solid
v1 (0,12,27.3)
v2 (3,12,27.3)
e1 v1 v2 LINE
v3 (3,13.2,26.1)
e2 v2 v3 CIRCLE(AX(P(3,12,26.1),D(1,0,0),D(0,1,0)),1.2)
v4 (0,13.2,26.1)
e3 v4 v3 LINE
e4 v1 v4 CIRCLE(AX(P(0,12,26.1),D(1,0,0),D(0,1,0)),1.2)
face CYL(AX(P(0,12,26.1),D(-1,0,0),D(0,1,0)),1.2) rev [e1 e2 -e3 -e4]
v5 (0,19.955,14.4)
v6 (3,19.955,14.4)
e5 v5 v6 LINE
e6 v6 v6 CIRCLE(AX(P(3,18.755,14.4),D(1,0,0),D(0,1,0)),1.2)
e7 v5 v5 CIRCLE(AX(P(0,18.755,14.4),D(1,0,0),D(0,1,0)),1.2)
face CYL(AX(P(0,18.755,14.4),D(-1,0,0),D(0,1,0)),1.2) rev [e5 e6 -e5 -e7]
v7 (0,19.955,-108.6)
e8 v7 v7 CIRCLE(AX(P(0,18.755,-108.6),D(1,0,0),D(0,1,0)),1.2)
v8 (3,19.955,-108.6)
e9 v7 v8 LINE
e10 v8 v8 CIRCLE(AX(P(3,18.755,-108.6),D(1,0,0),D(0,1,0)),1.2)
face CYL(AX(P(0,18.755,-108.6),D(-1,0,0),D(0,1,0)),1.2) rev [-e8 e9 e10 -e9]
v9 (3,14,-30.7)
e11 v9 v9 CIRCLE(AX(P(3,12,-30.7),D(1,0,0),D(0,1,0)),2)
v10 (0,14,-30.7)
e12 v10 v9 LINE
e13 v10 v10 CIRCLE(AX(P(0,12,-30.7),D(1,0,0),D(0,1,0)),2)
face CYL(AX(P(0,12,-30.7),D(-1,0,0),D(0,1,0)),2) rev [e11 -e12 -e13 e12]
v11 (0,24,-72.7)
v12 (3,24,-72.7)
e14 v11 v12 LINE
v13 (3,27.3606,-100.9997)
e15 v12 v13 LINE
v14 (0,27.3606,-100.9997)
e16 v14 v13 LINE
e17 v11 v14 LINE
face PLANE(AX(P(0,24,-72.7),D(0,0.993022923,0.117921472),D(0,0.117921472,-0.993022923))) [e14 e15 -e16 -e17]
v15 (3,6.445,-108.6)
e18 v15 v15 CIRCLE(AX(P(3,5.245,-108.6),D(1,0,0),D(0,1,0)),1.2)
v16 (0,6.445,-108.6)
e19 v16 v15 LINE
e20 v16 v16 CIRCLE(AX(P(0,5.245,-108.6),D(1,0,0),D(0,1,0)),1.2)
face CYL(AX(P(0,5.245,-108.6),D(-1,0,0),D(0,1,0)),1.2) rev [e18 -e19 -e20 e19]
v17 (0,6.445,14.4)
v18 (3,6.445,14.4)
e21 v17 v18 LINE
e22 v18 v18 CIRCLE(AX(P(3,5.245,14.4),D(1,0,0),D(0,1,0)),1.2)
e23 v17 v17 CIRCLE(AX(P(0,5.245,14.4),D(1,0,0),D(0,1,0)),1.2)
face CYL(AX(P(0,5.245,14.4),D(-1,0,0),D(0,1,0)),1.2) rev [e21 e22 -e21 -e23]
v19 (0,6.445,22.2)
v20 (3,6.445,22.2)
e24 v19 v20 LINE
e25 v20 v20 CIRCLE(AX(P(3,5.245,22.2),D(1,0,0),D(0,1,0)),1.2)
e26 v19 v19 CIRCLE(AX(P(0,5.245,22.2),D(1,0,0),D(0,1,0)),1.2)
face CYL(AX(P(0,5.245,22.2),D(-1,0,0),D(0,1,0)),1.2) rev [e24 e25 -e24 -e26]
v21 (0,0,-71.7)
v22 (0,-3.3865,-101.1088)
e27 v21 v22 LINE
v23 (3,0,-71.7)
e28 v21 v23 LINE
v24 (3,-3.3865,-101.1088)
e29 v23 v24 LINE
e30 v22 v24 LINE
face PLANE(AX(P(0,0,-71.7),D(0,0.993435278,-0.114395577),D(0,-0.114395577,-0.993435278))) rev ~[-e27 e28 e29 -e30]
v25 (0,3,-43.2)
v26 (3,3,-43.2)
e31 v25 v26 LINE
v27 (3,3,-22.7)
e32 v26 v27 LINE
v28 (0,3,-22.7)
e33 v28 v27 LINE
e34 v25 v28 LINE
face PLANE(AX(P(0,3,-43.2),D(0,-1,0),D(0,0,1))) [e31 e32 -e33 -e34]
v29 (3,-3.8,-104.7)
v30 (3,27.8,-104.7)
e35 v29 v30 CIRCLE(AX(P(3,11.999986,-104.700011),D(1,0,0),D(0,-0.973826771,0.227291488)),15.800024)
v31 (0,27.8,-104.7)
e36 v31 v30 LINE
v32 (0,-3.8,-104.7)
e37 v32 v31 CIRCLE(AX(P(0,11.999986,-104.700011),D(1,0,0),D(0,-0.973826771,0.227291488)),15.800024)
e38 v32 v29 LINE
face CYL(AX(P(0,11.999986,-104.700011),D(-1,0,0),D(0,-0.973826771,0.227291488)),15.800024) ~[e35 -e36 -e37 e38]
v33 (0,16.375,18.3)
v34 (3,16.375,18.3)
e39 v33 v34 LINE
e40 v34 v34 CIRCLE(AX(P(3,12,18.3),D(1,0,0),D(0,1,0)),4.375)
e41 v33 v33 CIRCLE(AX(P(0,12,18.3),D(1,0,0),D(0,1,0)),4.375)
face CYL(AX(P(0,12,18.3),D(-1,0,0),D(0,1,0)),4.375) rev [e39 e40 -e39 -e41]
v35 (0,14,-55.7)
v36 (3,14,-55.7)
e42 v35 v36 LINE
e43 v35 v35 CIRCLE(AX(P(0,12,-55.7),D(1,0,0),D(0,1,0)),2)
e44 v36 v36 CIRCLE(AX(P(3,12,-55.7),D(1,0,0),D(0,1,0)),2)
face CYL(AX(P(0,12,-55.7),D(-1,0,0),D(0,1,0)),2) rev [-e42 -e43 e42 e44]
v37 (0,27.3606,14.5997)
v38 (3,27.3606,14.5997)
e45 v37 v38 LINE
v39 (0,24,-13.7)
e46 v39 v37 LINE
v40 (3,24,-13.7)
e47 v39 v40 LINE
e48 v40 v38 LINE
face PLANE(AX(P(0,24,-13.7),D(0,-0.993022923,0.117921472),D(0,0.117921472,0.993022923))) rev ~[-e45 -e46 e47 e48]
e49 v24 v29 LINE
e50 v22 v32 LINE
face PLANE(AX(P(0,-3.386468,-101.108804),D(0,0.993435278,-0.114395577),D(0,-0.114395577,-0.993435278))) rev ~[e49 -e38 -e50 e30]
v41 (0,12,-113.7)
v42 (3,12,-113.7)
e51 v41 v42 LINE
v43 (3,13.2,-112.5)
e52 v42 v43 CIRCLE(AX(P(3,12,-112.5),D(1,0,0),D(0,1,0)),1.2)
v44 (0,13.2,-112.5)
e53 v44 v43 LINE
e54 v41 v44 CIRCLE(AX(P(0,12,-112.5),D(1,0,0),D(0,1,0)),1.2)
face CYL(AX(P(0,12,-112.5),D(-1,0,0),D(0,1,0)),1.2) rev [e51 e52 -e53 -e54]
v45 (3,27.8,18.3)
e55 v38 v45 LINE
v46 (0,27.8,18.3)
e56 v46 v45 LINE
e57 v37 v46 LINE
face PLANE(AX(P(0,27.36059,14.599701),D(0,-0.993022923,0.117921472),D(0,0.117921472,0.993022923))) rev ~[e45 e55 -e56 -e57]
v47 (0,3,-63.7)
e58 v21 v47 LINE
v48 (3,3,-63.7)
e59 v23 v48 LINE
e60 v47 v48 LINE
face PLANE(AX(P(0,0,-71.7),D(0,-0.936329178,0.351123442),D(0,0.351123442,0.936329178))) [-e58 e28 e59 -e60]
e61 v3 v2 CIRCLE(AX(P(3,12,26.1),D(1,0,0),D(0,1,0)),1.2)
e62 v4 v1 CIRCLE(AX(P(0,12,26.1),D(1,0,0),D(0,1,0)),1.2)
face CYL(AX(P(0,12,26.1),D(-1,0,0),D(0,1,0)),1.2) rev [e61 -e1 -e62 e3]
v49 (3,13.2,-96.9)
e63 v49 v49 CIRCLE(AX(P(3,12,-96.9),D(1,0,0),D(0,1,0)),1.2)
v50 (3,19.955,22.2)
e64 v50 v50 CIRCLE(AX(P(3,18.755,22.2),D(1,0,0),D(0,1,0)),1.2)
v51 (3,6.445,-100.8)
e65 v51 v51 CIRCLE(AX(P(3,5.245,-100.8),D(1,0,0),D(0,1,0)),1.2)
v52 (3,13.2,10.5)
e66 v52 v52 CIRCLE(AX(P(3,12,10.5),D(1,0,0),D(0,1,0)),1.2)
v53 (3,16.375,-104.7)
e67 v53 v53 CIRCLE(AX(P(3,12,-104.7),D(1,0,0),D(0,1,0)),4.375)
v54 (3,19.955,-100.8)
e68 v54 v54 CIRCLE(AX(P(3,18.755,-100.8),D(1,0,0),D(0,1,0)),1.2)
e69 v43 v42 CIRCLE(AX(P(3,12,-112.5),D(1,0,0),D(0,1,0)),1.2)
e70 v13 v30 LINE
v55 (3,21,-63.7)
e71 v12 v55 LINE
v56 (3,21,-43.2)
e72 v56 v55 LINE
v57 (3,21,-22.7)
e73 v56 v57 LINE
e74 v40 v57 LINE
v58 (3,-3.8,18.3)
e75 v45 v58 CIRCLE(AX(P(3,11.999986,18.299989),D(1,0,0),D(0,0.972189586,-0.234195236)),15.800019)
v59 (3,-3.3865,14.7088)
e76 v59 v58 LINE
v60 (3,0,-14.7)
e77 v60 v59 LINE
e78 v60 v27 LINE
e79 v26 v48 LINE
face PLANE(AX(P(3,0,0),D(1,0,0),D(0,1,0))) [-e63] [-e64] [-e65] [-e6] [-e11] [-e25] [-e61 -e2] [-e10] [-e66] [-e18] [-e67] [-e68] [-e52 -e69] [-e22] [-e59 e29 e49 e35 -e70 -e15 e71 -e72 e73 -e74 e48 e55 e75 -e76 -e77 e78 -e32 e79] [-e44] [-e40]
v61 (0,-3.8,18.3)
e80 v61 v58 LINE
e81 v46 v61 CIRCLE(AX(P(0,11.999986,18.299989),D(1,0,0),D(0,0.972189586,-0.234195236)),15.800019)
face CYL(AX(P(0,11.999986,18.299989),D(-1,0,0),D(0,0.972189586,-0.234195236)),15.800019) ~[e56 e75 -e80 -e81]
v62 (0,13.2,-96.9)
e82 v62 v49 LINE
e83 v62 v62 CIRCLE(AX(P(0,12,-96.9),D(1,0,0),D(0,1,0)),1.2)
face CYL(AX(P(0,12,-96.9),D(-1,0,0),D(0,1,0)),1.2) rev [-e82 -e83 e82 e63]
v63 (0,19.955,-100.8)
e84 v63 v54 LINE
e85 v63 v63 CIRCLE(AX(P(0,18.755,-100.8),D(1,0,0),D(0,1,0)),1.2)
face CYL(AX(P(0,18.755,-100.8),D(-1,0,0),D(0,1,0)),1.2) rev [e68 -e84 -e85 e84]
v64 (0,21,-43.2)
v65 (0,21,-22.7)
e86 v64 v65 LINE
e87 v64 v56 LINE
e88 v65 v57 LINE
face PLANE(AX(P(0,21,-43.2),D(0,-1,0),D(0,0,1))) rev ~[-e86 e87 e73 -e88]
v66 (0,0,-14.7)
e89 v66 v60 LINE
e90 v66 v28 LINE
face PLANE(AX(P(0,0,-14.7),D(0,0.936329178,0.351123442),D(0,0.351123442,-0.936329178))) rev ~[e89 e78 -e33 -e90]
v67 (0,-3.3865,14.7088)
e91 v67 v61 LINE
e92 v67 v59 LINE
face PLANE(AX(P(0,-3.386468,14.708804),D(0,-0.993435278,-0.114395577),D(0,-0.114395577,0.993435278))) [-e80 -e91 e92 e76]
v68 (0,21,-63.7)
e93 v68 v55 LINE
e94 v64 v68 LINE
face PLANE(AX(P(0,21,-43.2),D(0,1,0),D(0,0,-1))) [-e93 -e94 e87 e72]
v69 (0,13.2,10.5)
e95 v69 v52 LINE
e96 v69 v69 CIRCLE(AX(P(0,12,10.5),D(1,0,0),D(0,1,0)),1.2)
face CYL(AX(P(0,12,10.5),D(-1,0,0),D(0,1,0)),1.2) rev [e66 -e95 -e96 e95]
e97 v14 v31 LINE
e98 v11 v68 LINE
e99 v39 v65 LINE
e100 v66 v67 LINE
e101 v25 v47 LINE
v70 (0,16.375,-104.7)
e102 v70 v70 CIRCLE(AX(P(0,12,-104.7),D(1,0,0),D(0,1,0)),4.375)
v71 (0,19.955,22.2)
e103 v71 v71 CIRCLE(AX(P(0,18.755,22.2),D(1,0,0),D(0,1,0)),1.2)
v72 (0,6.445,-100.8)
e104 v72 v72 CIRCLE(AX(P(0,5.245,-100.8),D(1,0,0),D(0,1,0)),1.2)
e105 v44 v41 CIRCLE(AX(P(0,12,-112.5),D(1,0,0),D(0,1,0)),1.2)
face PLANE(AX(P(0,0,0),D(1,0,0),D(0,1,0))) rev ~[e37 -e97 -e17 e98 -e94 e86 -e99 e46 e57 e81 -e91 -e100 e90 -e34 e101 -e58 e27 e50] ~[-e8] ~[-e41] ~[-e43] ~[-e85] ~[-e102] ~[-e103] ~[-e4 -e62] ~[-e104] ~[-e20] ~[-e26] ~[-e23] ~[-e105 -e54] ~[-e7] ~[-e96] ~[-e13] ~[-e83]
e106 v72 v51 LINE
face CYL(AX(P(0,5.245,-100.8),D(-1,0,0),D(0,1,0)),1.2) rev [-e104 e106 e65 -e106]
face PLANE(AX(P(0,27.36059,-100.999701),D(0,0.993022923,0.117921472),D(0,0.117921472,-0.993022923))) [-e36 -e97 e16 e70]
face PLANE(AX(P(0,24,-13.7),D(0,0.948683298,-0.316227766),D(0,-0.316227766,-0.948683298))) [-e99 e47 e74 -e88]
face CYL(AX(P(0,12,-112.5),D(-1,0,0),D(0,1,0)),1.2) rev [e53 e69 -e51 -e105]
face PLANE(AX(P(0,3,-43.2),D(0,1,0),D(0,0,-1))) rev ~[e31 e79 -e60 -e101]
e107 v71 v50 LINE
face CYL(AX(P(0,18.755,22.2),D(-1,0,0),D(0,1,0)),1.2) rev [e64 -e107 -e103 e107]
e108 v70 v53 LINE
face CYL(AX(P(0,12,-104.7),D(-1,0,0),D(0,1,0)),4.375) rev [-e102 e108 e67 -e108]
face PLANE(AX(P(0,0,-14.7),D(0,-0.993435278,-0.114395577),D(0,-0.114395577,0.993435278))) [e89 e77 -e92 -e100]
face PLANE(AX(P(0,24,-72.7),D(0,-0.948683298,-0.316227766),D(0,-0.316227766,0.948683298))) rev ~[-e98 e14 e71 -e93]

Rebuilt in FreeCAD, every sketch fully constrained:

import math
import FreeCAD as App
import Part
import Sketcher

V = App.Vector
Q = App.Units.Quantity

doc = App.newDocument("Part")
body = doc.addObject("PartDesign::Body", "Body")

# Sketch on YZ plane
sketch1 = body.newObject("Sketcher::SketchObject", "Sketch")
sketch1.AttachmentSupport = (doc.getObject("YZ_Plane"), [""])
sketch1.MapMode = "FlatFace"
sketch1.addGeometry(Part.LineSegment(V(27.8, -104.7, 0), V(24, -72.7, 0)), False)
sketch1.addGeometry(Part.LineSegment(V(24, -72.7, 0), V(21, -63.7, 0)), False)
sketch1.addGeometry(Part.LineSegment(V(21, -63.7, 0), V(21, -22.7, 0)), False)
sketch1.addGeometry(Part.LineSegment(V(21, -22.7, 0), V(24, -13.7, 0)), False)
sketch1.addGeometry(Part.LineSegment(V(24, -13.7, 0), V(27.8, 18.3, 0)), False)
sketch1.addGeometry(Part.ArcOfCircle(Part.Circle(V(12, 18.3, 0), V(0, 0, 1), 15.8), math.radians(0), math.radians(180)), False)
sketch1.addGeometry(Part.LineSegment(V(-3.8, 18.3, 0), V(0, -14.7, 0)), False)
sketch1.addGeometry(Part.LineSegment(V(0, -14.7, 0), V(3, -22.7, 0)), False)
sketch1.addGeometry(Part.LineSegment(V(3, -22.7, 0), V(3, -63.7, 0)), False)
sketch1.addGeometry(Part.LineSegment(V(3, -63.7, 0), V(0, -71.7, 0)), False)
sketch1.addGeometry(Part.LineSegment(V(0, -71.7, 0), V(-3.8, -104.7, 0)), False)
sketch1.addGeometry(Part.ArcOfCircle(Part.Circle(V(12, -104.7, 0), V(0, 0, 1), 15.8), math.radians(180), math.radians(360)), False)
sketch1.addGeometry(Part.Circle(V(5.2, -108.6, 0), V(0, 0, 1), 1.2), False)
sketch1.addGeometry(Part.Circle(V(5.2, -100.8, 0), V(0, 0, 1), 1.2), False)
sketch1.addGeometry(Part.Circle(V(12, -112.5, 0), V(0, 0, 1), 1.2), False)
sketch1.addGeometry(Part.Circle(V(12, -104.7, 0), V(0, 0, 1), 4.4), False)
sketch1.addGeometry(Part.Circle(V(18.8, -108.6, 0), V(0, 0, 1), 1.2), False)
sketch1.addGeometry(Part.Circle(V(12, -96.9, 0), V(0, 0, 1), 1.2), False)
sketch1.addGeometry(Part.Circle(V(18.8, -100.8, 0), V(0, 0, 1), 1.2), False)
sketch1.addGeometry(Part.Circle(V(12, -55.7, 0), V(0, 0, 1), 2), False)
sketch1.addGeometry(Part.Circle(V(5.2, 14.4, 0), V(0, 0, 1), 1.2), False)
sketch1.addGeometry(Part.Circle(V(5.2, 22.2, 0), V(0, 0, 1), 1.2), False)
sketch1.addGeometry(Part.Circle(V(12, -30.7, 0), V(0, 0, 1), 2), False)
sketch1.addGeometry(Part.Circle(V(12, 10.5, 0), V(0, 0, 1), 1.2), False)
sketch1.addGeometry(Part.Circle(V(18.8, 14.4, 0), V(0, 0, 1), 1.2), False)
sketch1.addGeometry(Part.Circle(V(12, 18.3, 0), V(0, 0, 1), 4.4), False)
sketch1.addGeometry(Part.Circle(V(12, 26.1, 0), V(0, 0, 1), 1.2), False)
sketch1.addGeometry(Part.Circle(V(18.8, 22.2, 0), V(0, 0, 1), 1.2), False)
sketch1.addConstraint(Sketcher.Constraint("Coincident", 0, 2, 1, 1))
sketch1.addConstraint(Sketcher.Constraint("Coincident", 1, 2, 2, 1))
sketch1.addConstraint(Sketcher.Constraint("Coincident", 2, 2, 3, 1))
sketch1.addConstraint(Sketcher.Constraint("Coincident", 3, 2, 4, 1))
sketch1.addConstraint(Sketcher.Constraint("Coincident", 4, 2, 5, 1))
sketch1.addConstraint(Sketcher.Constraint("Coincident", 5, 2, 6, 1))
sketch1.addConstraint(Sketcher.Constraint("Coincident", 6, 2, 7, 1))
sketch1.addConstraint(Sketcher.Constraint("Coincident", 7, 2, 8, 1))
sketch1.addConstraint(Sketcher.Constraint("Coincident", 8, 2, 9, 1))
sketch1.addConstraint(Sketcher.Constraint("Coincident", 9, 2, 10, 1))
sketch1.addConstraint(Sketcher.Constraint("Coincident", 10, 2, 11, 1))
sketch1.addConstraint(Sketcher.Constraint("Coincident", 11, 2, 0, 1))
sketch1.addConstraint(Sketcher.Constraint("Vertical", 2))
sketch1.addConstraint(Sketcher.Constraint("Vertical", 8))
sketch1.addConstraint(Sketcher.Constraint("Coincident", 15, 3, 11, 3))
sketch1.addConstraint(Sketcher.Constraint("Coincident", 25, 3, 5, 3))
sketch1.addConstraint(Sketcher.Constraint("Equal", 5, 11))
sketch1.addConstraint(Sketcher.Constraint("Equal", 12, 13))
sketch1.addConstraint(Sketcher.Constraint("Equal", 13, 14))
sketch1.addConstraint(Sketcher.Constraint("Equal", 14, 16))
sketch1.addConstraint(Sketcher.Constraint("Equal", 16, 17))
sketch1.addConstraint(Sketcher.Constraint("Equal", 17, 18))
sketch1.addConstraint(Sketcher.Constraint("Equal", 18, 20))
sketch1.addConstraint(Sketcher.Constraint("Equal", 20, 21))
sketch1.addConstraint(Sketcher.Constraint("Equal", 19, 22))
sketch1.addConstraint(Sketcher.Constraint("Equal", 21, 23))
sketch1.addConstraint(Sketcher.Constraint("Equal", 23, 24))
sketch1.addConstraint(Sketcher.Constraint("Equal", 15, 25))
sketch1.addConstraint(Sketcher.Constraint("Equal", 24, 26))
sketch1.addConstraint(Sketcher.Constraint("Equal", 26, 27))
sketch1.addConstraint(Sketcher.Constraint("PointOnObject", 6, 2, -2))
sketch1.addConstraint(Sketcher.Constraint("PointOnObject", 9, 2, -2))
sketch1.addConstraint(Sketcher.Constraint("Horizontal", 12, 3, 16, 3))
sketch1.addConstraint(Sketcher.Constraint("Horizontal", 13, 3, 18, 3))
sketch1.addConstraint(Sketcher.Constraint("Horizontal", 20, 3, 24, 3))
sketch1.addConstraint(Sketcher.Constraint("Horizontal", 21, 3, 27, 3))
sketch1.addConstraint(Sketcher.Constraint("Horizontal", 25, 3, 4, 2))
sketch1.addConstraint(Sketcher.Constraint("Horizontal", 4, 2, 5, 2))
sketch1.addConstraint(Sketcher.Constraint("Horizontal", 2, 2, 7, 2))
sketch1.addConstraint(Sketcher.Constraint("Horizontal", 1, 2, 8, 2))
sketch1.addConstraint(Sketcher.Constraint("Horizontal", 15, 3, 10, 2))
sketch1.addConstraint(Sketcher.Constraint("Horizontal", 10, 2, 11, 2))
sketch1.addConstraint(Sketcher.Constraint("Vertical", 5, 3, 11, 3))
sketch1.addConstraint(Sketcher.Constraint("Vertical", 12, 3, 13, 3))
sketch1.addConstraint(Sketcher.Constraint("Vertical", 11, 3, 14, 3))
sketch1.addConstraint(Sketcher.Constraint("Vertical", 15, 3, 17, 3))
sketch1.addConstraint(Sketcher.Constraint("Vertical", 16, 3, 18, 3))
sketch1.addConstraint(Sketcher.Constraint("Vertical", 17, 3, 19, 3))
sketch1.addConstraint(Sketcher.Constraint("Vertical", 13, 3, 20, 3))
sketch1.addConstraint(Sketcher.Constraint("Vertical", 20, 3, 21, 3))
sketch1.addConstraint(Sketcher.Constraint("Vertical", 19, 3, 22, 3))
sketch1.addConstraint(Sketcher.Constraint("Vertical", 22, 3, 23, 3))
sketch1.addConstraint(Sketcher.Constraint("Vertical", 18, 3, 24, 3))
sketch1.addConstraint(Sketcher.Constraint("Vertical", 25, 3, 26, 3))
sketch1.addConstraint(Sketcher.Constraint("Vertical", 24, 3, 27, 3))
sketch1.addConstraint(Sketcher.Constraint("Vertical", 0, 2, 3, 2))
sketch1.addConstraint(Sketcher.Constraint("Equal", 1, 3))
sketch1.addConstraint(Sketcher.Constraint("Equal", 0, 4))
sketch1.addConstraint(Sketcher.Constraint("Equal", 7, 9))
sketch1.addConstraint(Sketcher.Constraint("Diameter", 19, Q("4 mm")))
sketch1.addConstraint(Sketcher.Constraint("Diameter", 12, Q("2.4 mm")))
sketch1.addConstraint(Sketcher.Constraint("Diameter", 15, Q("8.75 mm")))
sketch1.addConstraint(Sketcher.Constraint("DistanceY", 0, 2, 1, 2, Q("9 mm")))
sketch1.addConstraint(Sketcher.Constraint("DistanceX", 19, 3, 1, 2, Q("9 mm")))
sketch1.addConstraint(Sketcher.Constraint("DistanceY", 1, 2, 19, 3, Q("8 mm")))
sketch1.addConstraint(Sketcher.Constraint("DistanceY", 22, 3, 2, 2, Q("8 mm")))
sketch1.addConstraint(Sketcher.Constraint("DistanceY", 2, 2, 6, 2, Q("8 mm")))
sketch1.addConstraint(Sketcher.Constraint("DistanceX", 7, 2, 22, 3, Q("9 mm")))
sketch1.addConstraint(Sketcher.Constraint("Radius", 5, Q("15.8 mm")))
sketch1.addConstraint(Sketcher.Constraint("DistanceY", 2, 1, 2, 2, Q("41 mm")))
sketch1.addConstraint(Sketcher.Constraint("DistanceX", -1, 1, 5, 3, Q("12 mm")))
sketch1.addConstraint(Sketcher.Constraint("DistanceX", -1, 1, 0, 2, Q("24 mm")))
sketch1.addConstraint(Sketcher.Constraint("DistanceY", 11, 3, 5, 3, Q("123 mm")))
sketch1.addConstraint(Sketcher.Constraint("DistanceY", 13, 3, 21, 3, Q("123 mm")))
sketch1.addConstraint(Sketcher.Constraint("DistanceY", -1, 1, 5, 3, Q("18.3 mm")))
sketch1.addConstraint(Sketcher.Constraint("DistanceY", 12, 3, -1, 1, Q("108.6 mm")))
sketch1.addConstraint(Sketcher.Constraint("DistanceY", 13, 3, -1, 1, Q("100.8 mm")))
sketch1.addConstraint(Sketcher.Constraint("DistanceY", 14, 3, -1, 1, Q("112.5 mm")))
sketch1.addConstraint(Sketcher.Constraint("DistanceY", 17, 3, -1, 1, Q("96.9 mm")))
sketch1.addConstraint(Sketcher.Constraint("DistanceY", -1, 1, 20, 3, Q("14.4 mm")))
sketch1.addConstraint(Sketcher.Constraint("DistanceY", -1, 1, 23, 3, Q("10.5 mm")))
sketch1.addConstraint(Sketcher.Constraint("DistanceY", -1, 1, 26, 3, Q("26.1 mm")))
sketch1.addConstraint(Sketcher.Constraint("DistanceX", 12, 3, 16, 3, Q("13.51 mm")))
sketch1.addConstraint(Sketcher.Constraint("DistanceX", -1, 1, 12, 3, Q("5.245 mm")))
pad1 = body.newObject("PartDesign::Pad", "Pad")
pad1.Profile = sketch1
pad1.Length = 3

doc.recompute()
